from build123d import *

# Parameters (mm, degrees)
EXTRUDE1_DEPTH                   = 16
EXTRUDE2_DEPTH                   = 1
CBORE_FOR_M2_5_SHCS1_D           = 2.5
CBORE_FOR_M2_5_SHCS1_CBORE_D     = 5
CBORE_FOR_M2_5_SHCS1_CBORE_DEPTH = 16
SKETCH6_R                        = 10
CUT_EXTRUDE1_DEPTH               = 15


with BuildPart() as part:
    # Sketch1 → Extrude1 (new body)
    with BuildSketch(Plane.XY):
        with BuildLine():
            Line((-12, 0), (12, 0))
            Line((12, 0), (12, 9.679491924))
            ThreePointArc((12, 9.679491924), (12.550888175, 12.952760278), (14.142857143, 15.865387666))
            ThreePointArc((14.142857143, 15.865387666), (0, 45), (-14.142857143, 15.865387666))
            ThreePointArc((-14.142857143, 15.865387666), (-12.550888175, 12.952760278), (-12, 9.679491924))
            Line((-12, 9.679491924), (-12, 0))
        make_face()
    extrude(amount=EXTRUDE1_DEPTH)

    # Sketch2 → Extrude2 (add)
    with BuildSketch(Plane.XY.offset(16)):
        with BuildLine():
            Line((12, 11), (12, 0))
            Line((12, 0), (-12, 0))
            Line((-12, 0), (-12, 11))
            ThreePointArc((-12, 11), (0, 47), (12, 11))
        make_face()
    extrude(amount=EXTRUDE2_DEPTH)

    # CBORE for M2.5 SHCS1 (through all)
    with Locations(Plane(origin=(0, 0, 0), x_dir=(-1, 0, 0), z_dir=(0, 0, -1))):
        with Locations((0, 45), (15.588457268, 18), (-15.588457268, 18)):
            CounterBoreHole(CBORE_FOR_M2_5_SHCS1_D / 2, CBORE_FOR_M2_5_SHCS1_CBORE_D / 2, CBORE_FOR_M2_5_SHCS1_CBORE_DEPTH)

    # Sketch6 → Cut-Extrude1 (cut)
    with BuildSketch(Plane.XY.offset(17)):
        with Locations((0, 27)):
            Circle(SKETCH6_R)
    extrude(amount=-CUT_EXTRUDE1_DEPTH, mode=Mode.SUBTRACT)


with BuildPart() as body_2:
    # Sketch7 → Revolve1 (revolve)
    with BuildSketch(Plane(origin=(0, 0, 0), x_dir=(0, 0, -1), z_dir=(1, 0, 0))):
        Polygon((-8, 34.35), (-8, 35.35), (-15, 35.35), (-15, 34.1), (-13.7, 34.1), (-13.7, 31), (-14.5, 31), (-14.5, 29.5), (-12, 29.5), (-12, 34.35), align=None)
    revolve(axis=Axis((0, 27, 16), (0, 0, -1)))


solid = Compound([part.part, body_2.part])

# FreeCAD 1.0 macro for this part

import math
import FreeCAD as App
import Part
import Sketcher

V = App.Vector
Q = App.Units.Quantity


def add_polygon(sketch, points):
    """Adds a closed chain of lines whose ends are joined by coincident constraints."""
    first, n = sketch.GeometryCount, len(points)
    for a, b in zip(points, points[1:] + points[:1]):
        sketch.addGeometry(Part.LineSegment(App.Vector(*a, 0), App.Vector(*b, 0)), False)
    for i in range(n):
        sketch.addConstraint(Sketcher.Constraint("Coincident", first + i, 2, first + (i + 1) % n, 1))

doc = App.newDocument("Part")
body = doc.addObject("PartDesign::Body", "Body")

# Sketch on XY plane
sketch1 = body.newObject("Sketcher::SketchObject", "Sketch")
sketch1.AttachmentSupport = (doc.getObject("XY_Plane"), [""])
sketch1.MapMode = "FlatFace"
sketch1.addGeometry(Part.LineSegment(V(-12, 0, 0), V(12, 0, 0)), False)
sketch1.addGeometry(Part.LineSegment(V(12, 0, 0), V(12, 10, 0)), False)
sketch1.addGeometry(Part.ArcOfCircle(Part.Circle(V(22, 10, 0), V(0, 0, 1), 10), math.radians(142), math.radians(180)), False)
sketch1.addGeometry(Part.ArcOfCircle(Part.Circle(V(0, 27, 0), V(0, 0, 1), 18), math.radians(-38), math.radians(218)), False)
sketch1.addGeometry(Part.ArcOfCircle(Part.Circle(V(-22, 10, 0), V(0, 0, 1), 10), math.radians(0), math.radians(38)), False)
sketch1.addGeometry(Part.LineSegment(V(-12, 10, 0), V(-12, 0, 0)), False)
sketch1.addConstraint(Sketcher.Constraint("Coincident", 0, 2, 1, 1))
sketch1.addConstraint(Sketcher.Constraint("Tangent", 1, 2, 2, 2))
sketch1.addConstraint(Sketcher.Constraint("Tangent", 2, 1, 3, 1))
sketch1.addConstraint(Sketcher.Constraint("Tangent", 3, 2, 4, 2))
sketch1.addConstraint(Sketcher.Constraint("Tangent", 4, 1, 5, 1))
sketch1.addConstraint(Sketcher.Constraint("Coincident", 5, 2, 0, 1))
sketch1.addConstraint(Sketcher.Constraint("Horizontal", 0))
sketch1.addConstraint(Sketcher.Constraint("Vertical", 1))
sketch1.addConstraint(Sketcher.Constraint("Vertical", 5))
sketch1.addConstraint(Sketcher.Constraint("Equal", 2, 4))
sketch1.addConstraint(Sketcher.Constraint("Symmetric", 0, 2, 5, 2, -1, 1))
sketch1.addConstraint(Sketcher.Constraint("PointOnObject", 3, 3, -2))
sketch1.addConstraint(Sketcher.Constraint("Radius", 2, Q("10 mm")))
sketch1.addConstraint(Sketcher.Constraint("Radius", 3, Q("18 mm")))
sketch1.addConstraint(Sketcher.Constraint("DistanceX", 0, 1, 0, 2, Q("24 mm")))
sketch1.addConstraint(Sketcher.Constraint("DistanceY", -1, 1, 3, 3, Q("27 mm")))
pad1 = body.newObject("PartDesign::Pad", "Pad")
pad1.Profile = sketch1
pad1.Length = 16

# Sketch on XY plane
sketch2 = body.newObject("Sketcher::SketchObject", "Sketch001")
sketch2.AttachmentSupport = (doc.getObject("XY_Plane"), [""])
sketch2.MapMode = "FlatFace"
sketch2.AttachmentOffset = App.Placement(V(0, 0, 16), App.Rotation())
sketch2.addGeometry(Part.LineSegment(V(12, 0, 0), V(12, 11, 0)), False)
sketch2.addGeometry(Part.ArcOfCircle(Part.Circle(V(0, 27, 0), V(0, 0, 1), 20), math.radians(-53), math.radians(233)), False)
sketch2.addGeometry(Part.LineSegment(V(-12, 11, 0), V(-12, 0, 0)), False)
sketch2.addGeometry(Part.LineSegment(V(-12, 0, 0), V(12, 0, 0)), False)
sketch2.addConstraint(Sketcher.Constraint("Coincident", 0, 2, 1, 1))
sketch2.addConstraint(Sketcher.Constraint("Coincident", 1, 2, 2, 1))
sketch2.addConstraint(Sketcher.Constraint("Coincident", 2, 2, 3, 1))
sketch2.addConstraint(Sketcher.Constraint("Coincident", 3, 2, 0, 1))
sketch2.addConstraint(Sketcher.Constraint("Vertical", 0))
sketch2.addConstraint(Sketcher.Constraint("Vertical", 2))
sketch2.addConstraint(Sketcher.Constraint("Horizontal", 3))
sketch2.addConstraint(Sketcher.Constraint("Symmetric", 2, 2, 3, 2, -1, 1))
sketch2.addConstraint(Sketcher.Constraint("PointOnObject", 1, 3, -2))
sketch2.addConstraint(Sketcher.Constraint("Radius", 1, Q("20 mm")))
sketch2.addConstraint(Sketcher.Constraint("DistanceX", 3, 1, 3, 2, Q("24 mm")))
sketch2.addConstraint(Sketcher.Constraint("DistanceY", 0, 1, 0, 2, Q("11 mm")))
pad2 = body.newObject("PartDesign::Pad", "Pad001")
pad2.Profile = sketch2
pad2.Length = 1

# Sketch on XY plane
sketch3 = body.newObject("Sketcher::SketchObject", "Sketch002")
sketch3.AttachmentSupport = (doc.getObject("XY_Plane"), [""])
sketch3.MapMode = "FlatFace"
sketch3.addGeometry(Part.Circle(V(0, 45, 0), V(0, 0, 1), 1.2), False)
sketch3.addGeometry(Part.Circle(V(-15.6, 18, 0), V(0, 0, 1), 1.2), False)
sketch3.addGeometry(Part.Circle(V(15.6, 18, 0), V(0, 0, 1), 1.2), False)
sketch3.addConstraint(Sketcher.Constraint("Equal", 0, 1))
sketch3.addConstraint(Sketcher.Constraint("Equal", 1, 2))
sketch3.addConstraint(Sketcher.Constraint("Symmetric", 1, 3, 2, 3, -2))
sketch3.addConstraint(Sketcher.Constraint("PointOnObject", 0, 3, -2))
sketch3.addConstraint(Sketcher.Constraint("Diameter", 0, Q("2.5 mm")))
sketch3.addConstraint(Sketcher.Constraint("DistanceY", -1, 1, 0, 3, Q("45 mm")))
sketch3.addConstraint(Sketcher.Constraint("DistanceY", -1, 1, 1, 3, Q("18 mm")))
sketch3.addConstraint(Sketcher.Constraint("DistanceX", 1, 3, -1, 1, Q("15.588457 mm")))
doc.recompute()
hole = body.newObject("PartDesign::Hole", "Hole")
hole.Profile = sketch3
hole.ThreadType = "None"
hole.Diameter = 2.5
hole.DepthType = "ThroughAll"
hole.HoleCutType = "Counterbore"
hole.HoleCutDiameter = 5
hole.HoleCutDepth = 16
hole.Reversed = True

# Sketch on XY plane
sketch4 = body.newObject("Sketcher::SketchObject", "Sketch003")
sketch4.AttachmentSupport = (doc.getObject("XY_Plane"), [""])
sketch4.MapMode = "FlatFace"
sketch4.AttachmentOffset = App.Placement(V(0, 0, 17), App.Rotation())
sketch4.addGeometry(Part.Circle(V(0, 27, 0), V(0, 0, 1), 10), False)
sketch4.addConstraint(Sketcher.Constraint("PointOnObject", 0, 3, -2))
sketch4.addConstraint(Sketcher.Constraint("Diameter", 0, Q("20 mm")))
sketch4.addConstraint(Sketcher.Constraint("DistanceY", -1, 1, 0, 3, Q("27 mm")))
pocket1 = body.newObject("PartDesign::Pocket", "Pocket")
pocket1.Profile = sketch4
pocket1.Length = 15
body2 = doc.addObject("PartDesign::Body", "Body001")

# Sketch on YZ plane
sketch5 = body2.newObject("Sketcher::SketchObject", "Sketch004")
sketch5.AttachmentSupport = (doc.getObject("YZ_Plane001"), [""])
sketch5.MapMode = "FlatFace"
add_polygon(sketch5, [(34.4, 8), (35.4, 8), (35.4, 15), (34.1, 15), (34.1, 13.7), (31, 13.7), (31, 14.5), (29.5, 14.5), (29.5, 12), (34.4, 12)])  # lines 0-9
sketch5.addGeometry(Part.LineSegment(V(27, 15, 0), V(27, 8, 0)), True)  # axis
sketch5.addConstraint(Sketcher.Constraint("Horizontal", 0))
sketch5.addConstraint(Sketcher.Constraint("Vertical", 1))
sketch5.addConstraint(Sketcher.Constraint("Horizontal", 2))
sketch5.addConstraint(Sketcher.Constraint("Vertical", 3))
sketch5.addConstraint(Sketcher.Constraint("Horizontal", 4))
sketch5.addConstraint(Sketcher.Constraint("Vertical", 5))
sketch5.addConstraint(Sketcher.Constraint("Horizontal", 6))
sketch5.addConstraint(Sketcher.Constraint("Vertical", 7))
sketch5.addConstraint(Sketcher.Constraint("Horizontal", 8))
sketch5.addConstraint(Sketcher.Constraint("Vertical", 9))
sketch5.addConstraint(Sketcher.Constraint("Vertical", 10))
sketch5.addConstraint(Sketcher.Constraint("Horizontal", 2, 2, 10, 1))
sketch5.addConstraint(Sketcher.Constraint("Horizontal", 9, 2, 10, 2))
sketch5.addConstraint(Sketcher.Constraint("DistanceX", 0, 1, 0, 2, Q("1 mm")))
sketch5.addConstraint(Sketcher.Constraint("DistanceY", 1, 1, 1, 2, Q("7 mm")))
sketch5.addConstraint(Sketcher.Constraint("DistanceY", 9, 2, 9, 1, Q("4 mm")))
sketch5.addConstraint(Sketcher.Constraint("DistanceX", 4, 2, 4, 1, Q("3.1 mm")))
sketch5.addConstraint(Sketcher.Constraint("DistanceX", 6, 2, 6, 1, Q("1.5 mm")))
sketch5.addConstraint(Sketcher.Constraint("DistanceY", 3, 2, 3, 1, Q("1.3 mm")))
sketch5.addConstraint(Sketcher.Constraint("DistanceY", 5, 1, 5, 2, Q("0.8 mm")))
sketch5.addConstraint(Sketcher.Constraint("DistanceY", -1, 1, 0, 2, Q("8 mm")))
sketch5.addConstraint(Sketcher.Constraint("DistanceX", -1, 1, 4, 2, Q("31 mm")))
sketch5.addConstraint(Sketcher.Constraint("DistanceX", -1, 1, 10, 1, Q("27 mm")))
sketch5.addConstraint(Sketcher.Constraint("DistanceX", 2, 2, 2, 1, Q("1.25 mm")))
revolution = body2.newObject("PartDesign::Revolution", "Revolution")
revolution.Profile = sketch5
revolution.ReferenceAxis = (sketch5, ["Axis0"])
revolution.Angle = 360

doc.recompute()
